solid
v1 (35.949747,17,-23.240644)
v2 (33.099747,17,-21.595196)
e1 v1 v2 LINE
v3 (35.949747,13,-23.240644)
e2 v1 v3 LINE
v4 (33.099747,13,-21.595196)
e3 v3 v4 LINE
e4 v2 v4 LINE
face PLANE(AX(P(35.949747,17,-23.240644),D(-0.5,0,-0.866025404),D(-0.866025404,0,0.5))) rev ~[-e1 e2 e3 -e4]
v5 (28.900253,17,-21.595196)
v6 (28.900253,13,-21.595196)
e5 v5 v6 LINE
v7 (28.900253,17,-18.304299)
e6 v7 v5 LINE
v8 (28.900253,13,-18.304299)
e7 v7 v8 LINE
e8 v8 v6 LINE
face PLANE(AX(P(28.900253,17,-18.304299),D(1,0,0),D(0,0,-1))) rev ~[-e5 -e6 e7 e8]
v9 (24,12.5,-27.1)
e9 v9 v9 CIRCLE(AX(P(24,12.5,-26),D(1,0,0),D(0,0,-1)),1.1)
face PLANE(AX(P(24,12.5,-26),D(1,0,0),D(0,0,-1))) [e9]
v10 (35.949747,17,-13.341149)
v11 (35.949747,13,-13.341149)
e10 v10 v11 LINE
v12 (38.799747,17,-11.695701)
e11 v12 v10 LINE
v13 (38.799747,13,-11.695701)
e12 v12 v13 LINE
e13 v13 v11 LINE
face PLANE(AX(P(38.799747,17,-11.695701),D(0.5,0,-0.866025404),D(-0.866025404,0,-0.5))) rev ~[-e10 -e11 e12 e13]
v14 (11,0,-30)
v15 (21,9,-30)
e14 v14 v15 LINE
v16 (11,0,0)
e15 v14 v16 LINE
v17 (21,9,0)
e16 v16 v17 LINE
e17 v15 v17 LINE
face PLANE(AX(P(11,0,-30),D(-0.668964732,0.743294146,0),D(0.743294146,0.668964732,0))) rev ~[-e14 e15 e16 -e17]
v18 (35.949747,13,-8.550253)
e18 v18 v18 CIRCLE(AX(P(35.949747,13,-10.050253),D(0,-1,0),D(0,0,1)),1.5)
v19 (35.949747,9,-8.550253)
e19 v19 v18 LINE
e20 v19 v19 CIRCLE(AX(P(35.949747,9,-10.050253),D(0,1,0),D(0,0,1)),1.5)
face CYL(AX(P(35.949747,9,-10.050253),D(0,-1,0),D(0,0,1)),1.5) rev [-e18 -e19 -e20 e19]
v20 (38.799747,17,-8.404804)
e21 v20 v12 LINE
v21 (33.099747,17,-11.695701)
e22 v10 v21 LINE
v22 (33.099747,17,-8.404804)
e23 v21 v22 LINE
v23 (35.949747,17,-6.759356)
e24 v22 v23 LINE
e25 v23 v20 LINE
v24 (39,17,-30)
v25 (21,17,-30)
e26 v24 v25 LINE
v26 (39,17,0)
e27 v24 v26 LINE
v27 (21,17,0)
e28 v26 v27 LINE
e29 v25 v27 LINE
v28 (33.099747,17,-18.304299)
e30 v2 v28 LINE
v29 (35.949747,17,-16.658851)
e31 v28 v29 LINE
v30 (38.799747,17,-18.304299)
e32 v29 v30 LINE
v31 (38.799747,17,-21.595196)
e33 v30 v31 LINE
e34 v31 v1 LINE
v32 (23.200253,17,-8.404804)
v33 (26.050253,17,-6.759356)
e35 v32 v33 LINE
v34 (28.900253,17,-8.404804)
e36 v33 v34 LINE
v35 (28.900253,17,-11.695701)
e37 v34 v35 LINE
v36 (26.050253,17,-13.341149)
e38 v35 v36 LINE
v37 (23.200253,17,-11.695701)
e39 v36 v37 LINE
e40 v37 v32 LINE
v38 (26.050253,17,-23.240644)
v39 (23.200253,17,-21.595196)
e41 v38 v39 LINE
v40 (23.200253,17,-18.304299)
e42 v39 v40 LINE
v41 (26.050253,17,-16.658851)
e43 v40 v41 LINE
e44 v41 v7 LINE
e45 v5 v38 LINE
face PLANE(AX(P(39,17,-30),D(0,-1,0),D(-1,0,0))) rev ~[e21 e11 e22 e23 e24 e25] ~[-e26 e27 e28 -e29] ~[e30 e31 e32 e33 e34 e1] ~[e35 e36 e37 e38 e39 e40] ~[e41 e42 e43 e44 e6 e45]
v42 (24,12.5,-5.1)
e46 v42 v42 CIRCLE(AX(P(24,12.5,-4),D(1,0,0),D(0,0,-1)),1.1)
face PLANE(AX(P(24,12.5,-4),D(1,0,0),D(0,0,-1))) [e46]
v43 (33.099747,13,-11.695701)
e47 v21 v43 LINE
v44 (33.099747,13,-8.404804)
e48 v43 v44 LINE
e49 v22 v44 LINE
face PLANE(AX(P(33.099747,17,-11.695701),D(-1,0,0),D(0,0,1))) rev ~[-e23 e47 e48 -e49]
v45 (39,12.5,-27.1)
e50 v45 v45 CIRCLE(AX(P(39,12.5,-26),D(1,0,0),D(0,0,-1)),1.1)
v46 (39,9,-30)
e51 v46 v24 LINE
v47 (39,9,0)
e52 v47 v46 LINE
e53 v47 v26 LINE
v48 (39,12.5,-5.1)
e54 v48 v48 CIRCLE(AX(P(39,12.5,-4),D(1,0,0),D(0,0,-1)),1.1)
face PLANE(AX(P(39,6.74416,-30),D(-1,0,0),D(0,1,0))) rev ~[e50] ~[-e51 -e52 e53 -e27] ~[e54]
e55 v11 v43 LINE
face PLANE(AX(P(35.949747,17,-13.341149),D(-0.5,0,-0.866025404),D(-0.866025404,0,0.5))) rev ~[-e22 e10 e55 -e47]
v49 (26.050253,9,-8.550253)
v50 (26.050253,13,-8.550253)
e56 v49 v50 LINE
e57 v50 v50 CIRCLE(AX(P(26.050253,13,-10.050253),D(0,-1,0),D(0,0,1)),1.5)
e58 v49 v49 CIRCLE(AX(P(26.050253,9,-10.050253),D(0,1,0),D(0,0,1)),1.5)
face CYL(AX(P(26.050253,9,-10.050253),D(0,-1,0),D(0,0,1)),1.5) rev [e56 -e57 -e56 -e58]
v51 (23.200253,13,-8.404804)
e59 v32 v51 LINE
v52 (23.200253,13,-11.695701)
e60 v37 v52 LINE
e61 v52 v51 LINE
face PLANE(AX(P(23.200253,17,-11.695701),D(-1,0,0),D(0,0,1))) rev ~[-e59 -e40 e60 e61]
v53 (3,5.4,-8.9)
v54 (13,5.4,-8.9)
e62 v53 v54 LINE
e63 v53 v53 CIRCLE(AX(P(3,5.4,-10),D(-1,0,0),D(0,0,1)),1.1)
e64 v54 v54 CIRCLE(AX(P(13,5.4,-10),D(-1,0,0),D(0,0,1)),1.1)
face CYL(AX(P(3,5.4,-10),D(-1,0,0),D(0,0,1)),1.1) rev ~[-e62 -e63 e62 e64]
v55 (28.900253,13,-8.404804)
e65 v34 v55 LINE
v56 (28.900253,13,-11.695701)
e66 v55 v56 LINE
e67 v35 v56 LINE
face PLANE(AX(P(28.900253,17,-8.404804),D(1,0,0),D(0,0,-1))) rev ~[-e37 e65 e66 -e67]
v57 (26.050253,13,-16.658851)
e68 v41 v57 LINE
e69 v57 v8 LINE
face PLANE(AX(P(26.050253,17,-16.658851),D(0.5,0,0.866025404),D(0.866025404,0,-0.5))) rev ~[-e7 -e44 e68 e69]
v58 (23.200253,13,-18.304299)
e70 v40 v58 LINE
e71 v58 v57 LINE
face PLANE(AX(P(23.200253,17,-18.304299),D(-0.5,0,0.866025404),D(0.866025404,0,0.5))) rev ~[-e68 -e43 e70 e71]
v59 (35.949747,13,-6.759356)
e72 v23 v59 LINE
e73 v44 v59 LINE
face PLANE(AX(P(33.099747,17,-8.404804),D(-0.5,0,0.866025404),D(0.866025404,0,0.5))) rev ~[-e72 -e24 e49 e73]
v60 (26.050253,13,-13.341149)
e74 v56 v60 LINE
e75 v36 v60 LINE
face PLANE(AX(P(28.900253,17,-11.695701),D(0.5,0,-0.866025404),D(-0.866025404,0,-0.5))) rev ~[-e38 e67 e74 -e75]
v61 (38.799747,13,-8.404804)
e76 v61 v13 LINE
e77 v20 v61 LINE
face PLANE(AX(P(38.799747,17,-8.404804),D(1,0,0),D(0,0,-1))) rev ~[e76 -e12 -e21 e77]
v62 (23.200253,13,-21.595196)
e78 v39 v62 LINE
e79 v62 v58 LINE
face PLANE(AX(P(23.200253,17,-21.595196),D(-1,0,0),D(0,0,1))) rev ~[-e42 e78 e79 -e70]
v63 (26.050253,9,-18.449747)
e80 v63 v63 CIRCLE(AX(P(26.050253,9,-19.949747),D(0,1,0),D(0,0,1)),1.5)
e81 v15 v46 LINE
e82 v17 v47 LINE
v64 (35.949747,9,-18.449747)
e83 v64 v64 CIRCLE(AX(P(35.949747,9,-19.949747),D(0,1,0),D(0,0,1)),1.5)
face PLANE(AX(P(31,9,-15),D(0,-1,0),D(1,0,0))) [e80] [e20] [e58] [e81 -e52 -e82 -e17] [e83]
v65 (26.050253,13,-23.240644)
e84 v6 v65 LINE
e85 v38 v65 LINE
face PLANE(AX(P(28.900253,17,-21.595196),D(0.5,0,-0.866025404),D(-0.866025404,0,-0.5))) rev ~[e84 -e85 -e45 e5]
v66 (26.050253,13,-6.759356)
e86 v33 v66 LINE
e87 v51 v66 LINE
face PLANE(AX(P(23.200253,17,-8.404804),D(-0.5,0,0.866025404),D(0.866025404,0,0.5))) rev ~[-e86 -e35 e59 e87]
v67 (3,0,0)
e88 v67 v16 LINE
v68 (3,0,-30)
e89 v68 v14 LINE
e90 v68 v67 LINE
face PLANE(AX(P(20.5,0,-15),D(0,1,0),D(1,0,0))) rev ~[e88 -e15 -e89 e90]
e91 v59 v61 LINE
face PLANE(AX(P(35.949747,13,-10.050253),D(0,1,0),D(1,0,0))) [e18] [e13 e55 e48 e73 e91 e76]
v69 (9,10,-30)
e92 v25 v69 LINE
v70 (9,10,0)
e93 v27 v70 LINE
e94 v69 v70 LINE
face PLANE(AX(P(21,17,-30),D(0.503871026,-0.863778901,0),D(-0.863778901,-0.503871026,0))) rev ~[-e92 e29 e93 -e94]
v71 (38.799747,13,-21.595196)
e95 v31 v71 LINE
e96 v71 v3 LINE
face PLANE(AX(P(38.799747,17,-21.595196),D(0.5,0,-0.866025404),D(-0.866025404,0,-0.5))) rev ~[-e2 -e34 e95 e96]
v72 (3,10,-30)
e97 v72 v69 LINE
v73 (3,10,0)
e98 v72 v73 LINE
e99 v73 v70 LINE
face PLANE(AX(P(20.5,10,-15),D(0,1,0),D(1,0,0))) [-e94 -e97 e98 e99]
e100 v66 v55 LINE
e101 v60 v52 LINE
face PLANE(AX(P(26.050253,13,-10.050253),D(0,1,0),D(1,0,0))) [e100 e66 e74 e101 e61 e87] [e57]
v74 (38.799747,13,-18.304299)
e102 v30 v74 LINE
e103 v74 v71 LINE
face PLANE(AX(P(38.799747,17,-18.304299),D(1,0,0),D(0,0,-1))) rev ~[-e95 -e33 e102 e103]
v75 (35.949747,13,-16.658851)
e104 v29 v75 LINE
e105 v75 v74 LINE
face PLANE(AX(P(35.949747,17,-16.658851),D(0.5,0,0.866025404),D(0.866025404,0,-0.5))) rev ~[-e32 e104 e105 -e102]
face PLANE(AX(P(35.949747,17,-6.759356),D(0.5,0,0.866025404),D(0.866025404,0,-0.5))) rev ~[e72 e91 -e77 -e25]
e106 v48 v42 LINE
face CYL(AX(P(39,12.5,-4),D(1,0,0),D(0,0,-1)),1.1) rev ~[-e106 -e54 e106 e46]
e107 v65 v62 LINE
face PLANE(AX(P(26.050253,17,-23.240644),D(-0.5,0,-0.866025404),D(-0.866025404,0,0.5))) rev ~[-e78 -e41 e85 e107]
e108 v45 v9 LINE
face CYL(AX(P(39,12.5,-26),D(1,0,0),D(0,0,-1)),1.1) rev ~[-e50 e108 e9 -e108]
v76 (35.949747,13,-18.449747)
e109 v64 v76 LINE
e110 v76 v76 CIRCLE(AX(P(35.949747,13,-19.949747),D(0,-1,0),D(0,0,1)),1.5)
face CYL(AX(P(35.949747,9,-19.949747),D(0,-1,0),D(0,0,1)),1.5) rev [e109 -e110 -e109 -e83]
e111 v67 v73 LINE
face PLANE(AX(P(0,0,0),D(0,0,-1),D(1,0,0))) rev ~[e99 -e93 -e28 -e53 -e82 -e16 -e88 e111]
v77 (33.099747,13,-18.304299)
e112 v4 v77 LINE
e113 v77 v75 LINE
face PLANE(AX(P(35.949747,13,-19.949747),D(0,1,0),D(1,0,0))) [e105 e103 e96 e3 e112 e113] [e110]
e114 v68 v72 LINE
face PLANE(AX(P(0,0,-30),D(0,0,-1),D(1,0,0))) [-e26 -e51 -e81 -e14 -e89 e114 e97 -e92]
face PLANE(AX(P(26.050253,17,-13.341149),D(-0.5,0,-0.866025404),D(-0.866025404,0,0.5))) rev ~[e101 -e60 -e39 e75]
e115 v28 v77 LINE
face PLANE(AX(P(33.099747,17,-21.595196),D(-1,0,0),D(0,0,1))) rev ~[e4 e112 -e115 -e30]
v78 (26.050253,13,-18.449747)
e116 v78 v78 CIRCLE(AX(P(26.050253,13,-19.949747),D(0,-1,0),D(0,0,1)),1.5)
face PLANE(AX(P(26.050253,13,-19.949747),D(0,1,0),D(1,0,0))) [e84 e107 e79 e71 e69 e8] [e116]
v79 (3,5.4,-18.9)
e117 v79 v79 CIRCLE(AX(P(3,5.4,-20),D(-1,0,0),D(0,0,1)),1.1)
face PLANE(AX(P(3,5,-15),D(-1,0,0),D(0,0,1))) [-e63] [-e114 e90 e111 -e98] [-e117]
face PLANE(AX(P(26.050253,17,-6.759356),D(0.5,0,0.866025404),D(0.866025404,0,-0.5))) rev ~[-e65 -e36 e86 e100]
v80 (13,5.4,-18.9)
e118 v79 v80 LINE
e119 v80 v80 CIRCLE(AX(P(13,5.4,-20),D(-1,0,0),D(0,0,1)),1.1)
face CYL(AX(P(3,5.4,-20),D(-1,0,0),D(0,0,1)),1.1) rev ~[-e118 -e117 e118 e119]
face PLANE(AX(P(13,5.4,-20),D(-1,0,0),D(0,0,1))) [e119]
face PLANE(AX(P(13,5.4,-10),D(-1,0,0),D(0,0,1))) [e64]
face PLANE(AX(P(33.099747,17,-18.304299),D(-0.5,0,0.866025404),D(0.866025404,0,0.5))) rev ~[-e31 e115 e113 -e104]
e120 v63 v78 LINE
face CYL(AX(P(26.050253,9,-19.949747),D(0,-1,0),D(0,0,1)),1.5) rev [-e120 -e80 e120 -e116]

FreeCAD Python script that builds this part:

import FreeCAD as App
import Part
import Sketcher
Q = App.Units.Quantity


def add_polygon(sketch, points):
    """Adds a closed chain of lines whose ends are joined by coincident constraints."""
    first, n = sketch.GeometryCount, len(points)
    for a, b in zip(points, points[1:] + points[:1]):
        sketch.addGeometry(Part.LineSegment(App.Vector(*a, 0), App.Vector(*b, 0)), False)
    for i in range(n):
        sketch.addConstraint(Sketcher.Constraint("Coincident", first + i, 2, first + (i + 1) % n, 1))

doc = App.newDocument("Part")
body = doc.addObject("PartDesign::Body", "Body")

# Sketch on XZ plane
sketch1 = doc.addObject("Sketcher::SketchObject", "Sketch")
body.addObject(sketch1)
sketch1.AttachmentSupport = (doc.XZ_Plane, [""])
sketch1.MapMode = "FlatFace"
add_polygon(sketch1, [(0, -30), (0, 0), (41, 0), (41, -30)])  # lines 0-3
sketch1.addConstraint([
    Sketcher.Constraint("Vertical", 0),
    Sketcher.Constraint("Horizontal", 1),
    Sketcher.Constraint("Vertical", 2),
    Sketcher.Constraint("Horizontal", 3),
    Sketcher.Constraint("Coincident", 0, 2, -1, 1),
    Sketcher.Constraint("DistanceX", 1, 1, 1, 2, 41.0),
    Sketcher.Constraint("DistanceY", 0, 1, 0, 2, 30.0),
])
pad1 = doc.addObject("PartDesign::Pad", "Pad")
body.addObject(pad1)
pad1.Profile = sketch1
pad1.Length = 10
pad1.Reversed = True

# Sketch on YZ plane
sketch2 = doc.addObject("Sketcher::SketchObject", "Sketch001")
body.addObject(sketch2)
sketch2.AttachmentSupport = (doc.YZ_Plane, [""])
sketch2.MapMode = "FlatFace"
add_polygon(sketch2, [(10, -30), (0, -30), (0, 0), (10, 0)])  # lines 0-3
sketch2.addConstraint([
    Sketcher.Constraint("Horizontal", 0),
    Sketcher.Constraint("Vertical", 1),
    Sketcher.Constraint("Horizontal", 2),
    Sketcher.Constraint("Vertical", 3),
    Sketcher.Constraint("Coincident", 1, 2, -1, 1),
    Sketcher.Constraint("DistanceX", 0, 2, 0, 1, 10.0),
    Sketcher.Constraint("DistanceY", 1, 1, 1, 2, 30.0),
])
pocket1 = doc.addObject("PartDesign::Pocket", "Pocket")
body.addObject(pocket1)
pocket1.Profile = sketch2
pocket1.Length = 3
pocket1.Reversed = True

# Sketch on XY plane
sketch3 = doc.addObject("Sketcher::SketchObject", "Sketch002")
body.addObject(sketch3)
sketch3.AttachmentSupport = (doc.XY_Plane, [""])
sketch3.MapMode = "FlatFace"
sketch3.AttachmentOffset = App.Placement(App.Vector(0, 0, -30), App.Rotation())
add_polygon(sketch3, [(21, 17), (39, 17), (39, 10), (9, 10)])  # lines 0-3
sketch3.addConstraint([
    Sketcher.Constraint("Horizontal", 0),
    Sketcher.Constraint("Vertical", 1),
    Sketcher.Constraint("Horizontal", 2),
    Sketcher.Constraint("DistanceX", 0, 1, 0, 2, 18.0),
    Sketcher.Constraint("DistanceX", 2, 2, 2, 1, 30.0),
    Sketcher.Constraint("DistanceY", 1, 2, 1, 1, 7.0),
    Sketcher.Constraint("DistanceX", -1, 1, 0, 2, 39.0),
    Sketcher.Constraint("DistanceY", -1, 1, 0, 2, 17.0),
])
pad2 = doc.addObject("PartDesign::Pad", "Pad001")
body.addObject(pad2)
pad2.Profile = sketch3
pad2.Length = 30

# Sketch on XZ plane
sketch4 = doc.addObject("Sketcher::SketchObject", "Sketch003")
body.addObject(sketch4)
sketch4.AttachmentSupport = (doc.XZ_Plane, [""])
sketch4.MapMode = "FlatFace"
add_polygon(sketch4, [(21, 0), (21, -30), (41, -30), (41, 0)])  # lines 0-3
sketch4.addConstraint([
    Sketcher.Constraint("Vertical", 0),
    Sketcher.Constraint("Horizontal", 1),
    Sketcher.Constraint("Vertical", 2),
    Sketcher.Constraint("Horizontal", 3),
    Sketcher.Constraint("PointOnObject", 2, 2, -1),
    Sketcher.Constraint("DistanceX", 1, 1, 1, 2, 20.0),
    Sketcher.Constraint("DistanceY", 0, 2, 0, 1, 30.0),
    Sketcher.Constraint("DistanceX", -1, 1, 0, 2, 21.0),
])
pocket2 = doc.addObject("PartDesign::Pocket", "Pocket001")
body.addObject(pocket2)
pocket2.Profile = sketch4
pocket2.Length = 9

# Sketch on YZ plane
sketch5 = doc.addObject("Sketcher::SketchObject", "Sketch004")
body.addObject(sketch5)
sketch5.AttachmentSupport = (doc.YZ_Plane, [""])
sketch5.MapMode = "FlatFace"
sketch5.AttachmentOffset = App.Placement(App.Vector(0, 0, 39), App.Rotation())
sketch5.addGeometry([
    Part.Circle(App.Vector(12.5, -4, 0), App.Vector(0, 0, 1), 1.1),
    Part.Circle(App.Vector(12.5, -26, 0), App.Vector(0, 0, 1), 1.1),
], False)
sketch5.addConstraint([
    Sketcher.Constraint("Equal", 0, 1),
    Sketcher.Constraint("Vertical", 0, 3, 1, 3),
    Sketcher.Constraint("Diameter", 0, 2.2),
    Sketcher.Constraint("DistanceY", 0, 3, -1, 1, 4.0),
    Sketcher.Constraint("DistanceY", 1, 3, -1, 1, 26.0),
    Sketcher.Constraint("DistanceX", -1, 1, 0, 3, 12.5),
])
pocket3 = doc.addObject("PartDesign::Pocket", "Pocket002")
body.addObject(pocket3)
pocket3.Profile = sketch5
pocket3.Length = 15

# Sketch on XZ plane
sketch6 = doc.addObject("Sketcher::SketchObject", "Sketch005")
body.addObject(sketch6)
sketch6.AttachmentSupport = (doc.XZ_Plane, [""])
sketch6.MapMode = "FlatFace"
sketch6.AttachmentOffset = App.Placement(App.Vector(0, 0, -9), App.Rotation())
sketch6.addGeometry([
    Part.Circle(App.Vector(35.949747, -19.949747, 0), App.Vector(0, 0, 1), 1.5),
    Part.Circle(App.Vector(35.949747, -10.050253, 0), App.Vector(0, 0, 1), 1.5),
    Part.Circle(App.Vector(26.050253, -10.050253, 0), App.Vector(0, 0, 1), 1.5),
    Part.Circle(App.Vector(26.050253, -19.949747, 0), App.Vector(0, 0, 1), 1.5),
], False)
sketch6.addConstraint([
    Sketcher.Constraint("Equal", 0, 1),
    Sketcher.Constraint("Equal", 1, 2),
    Sketcher.Constraint("Equal", 2, 3),
    Sketcher.Constraint("Horizontal", 1, 3, 2, 3),
    Sketcher.Constraint("Horizontal", 0, 3, 3, 3),
    Sketcher.Constraint("Vertical", 0, 3, 1, 3),
    Sketcher.Constraint("Vertical", 2, 3, 3, 3),
    Sketcher.Constraint("Diameter", 0, 3.0),
    Sketcher.Constraint("DistanceX", -1, 1, 0, 3, 35.949747),
    Sketcher.Constraint("DistanceY", 0, 3, -1, 1, 19.949747),
    Sketcher.Constraint("DistanceY", 1, 3, -1, 1, 10.050253),
    Sketcher.Constraint("DistanceX", -1, 1, 2, 3, 26.050253),
])
pocket4 = doc.addObject("PartDesign::Pocket", "Pocket003")
body.addObject(pocket4)
pocket4.Profile = sketch6
pocket4.Type = "ThroughAll"

# Sketch on YZ plane
sketch7 = doc.addObject("Sketcher::SketchObject", "Sketch006")
body.addObject(sketch7)
sketch7.AttachmentSupport = (doc.YZ_Plane, [""])
sketch7.MapMode = "FlatFace"
sketch7.AttachmentOffset = App.Placement(App.Vector(0, 0, 3), App.Rotation())
sketch7.addGeometry([
    Part.Circle(App.Vector(5.4, -20, 0), App.Vector(0, 0, 1), 1.1),
    Part.Circle(App.Vector(5.4, -10, 0), App.Vector(0, 0, 1), 1.1),
], False)
sketch7.addConstraint([
    Sketcher.Constraint("Equal", 0, 1),
    Sketcher.Constraint("Vertical", 0, 3, 1, 3),
    Sketcher.Constraint("Diameter", 0, 2.2),
    Sketcher.Constraint("DistanceY", 0, 3, -1, 1, 20.0),
    Sketcher.Constraint("DistanceY", 1, 3, -1, 1, 10.0),
    Sketcher.Constraint("DistanceX", -1, 1, 0, 3, 5.4),
])
pocket5 = doc.addObject("PartDesign::Pocket", "Pocket004")
body.addObject(pocket5)
pocket5.Profile = sketch7
pocket5.Length = 10
pocket5.Reversed = True

# Sketch on XY plane
sketch8 = doc.addObject("Sketcher::SketchObject", "Sketch007")
body.addObject(sketch8)
sketch8.AttachmentSupport = (doc.XY_Plane, [""])
sketch8.MapMode = "FlatFace"
sketch8.AttachmentOffset = App.Placement(App.Vector(0, 0, -30), App.Rotation())
add_polygon(sketch8, [(21, 9), (21, 0), (11, 0)])  # lines 0-2
sketch8.addConstraint([
    Sketcher.Constraint("Vertical", 0),
    Sketcher.Constraint("Horizontal", 1),
    Sketcher.Constraint("PointOnObject", 0, 2, -1),
    Sketcher.Constraint("DistanceX", 1, 2, 1, 1, 10.0),
    Sketcher.Constraint("DistanceY", 0, 2, 0, 1, 9.0),
    Sketcher.Constraint("DistanceX", -1, 1, 0, 2, 21.0),
])
pocket6 = doc.addObject("PartDesign::Pocket", "Pocket005")
body.addObject(pocket6)
pocket6.Profile = sketch8
pocket6.Type = "ThroughAll"
pocket6.Reversed = True

# Sketch on XZ plane
sketch9 = doc.addObject("Sketcher::SketchObject", "Sketch008")
body.addObject(sketch9)
sketch9.AttachmentSupport = (doc.XZ_Plane, [""])
sketch9.MapMode = "FlatFace"
sketch9.AttachmentOffset = App.Placement(App.Vector(0, 0, -17), App.Rotation())
add_polygon(sketch9, [(26.050253, -23.240644), (23.200253, -21.595196), (23.200253, -18.304299), (26.050253, -16.658851), (28.900253, -18.304299), (28.900253, -21.595196)])  # lines 0-5
add_polygon(sketch9, [(35.949747, -23.240644), (33.099747, -21.595196), (33.099747, -18.304299), (35.949747, -16.658851), (38.799747, -18.304299), (38.799747, -21.595196)])  # lines 6-11
add_polygon(sketch9, [(35.949747, -13.341149), (33.099747, -11.695701), (33.099747, -8.404804), (35.949747, -6.759356), (38.799747, -8.404804), (38.799747, -11.695701)])  # lines 12-17
add_polygon(sketch9, [(26.050253, -13.341149), (23.200253, -11.695701), (23.200253, -8.404804), (26.050253, -6.759356), (28.900253, -8.404804), (28.900253, -11.695701)])  # lines 18-23
sketch9.addConstraint([
    Sketcher.Constraint("Vertical", 1),
    Sketcher.Constraint("Vertical", 4),
    Sketcher.Constraint("Vertical", 7),
    Sketcher.Constraint("Vertical", 10),
    Sketcher.Constraint("Vertical", 13),
    Sketcher.Constraint("Vertical", 16),
    Sketcher.Constraint("Vertical", 19),
    Sketcher.Constraint("Vertical", 22),
    Sketcher.Constraint("Parallel", 0, 3),
    Sketcher.Constraint("Parallel", 2, 5),
    Sketcher.Constraint("Parallel", 3, 6),
    Sketcher.Constraint("Parallel", 5, 8),
    Sketcher.Constraint("Parallel", 6, 9),
    Sketcher.Constraint("Parallel", 8, 11),
    Sketcher.Constraint("Parallel", 9, 12),
    Sketcher.Constraint("Parallel", 11, 14),
    Sketcher.Constraint("Parallel", 12, 15),
    Sketcher.Constraint("Parallel", 14, 17),
    Sketcher.Constraint("Parallel", 15, 18),
    Sketcher.Constraint("Parallel", 17, 20),
    Sketcher.Constraint("Parallel", 18, 21),
    Sketcher.Constraint("Parallel", 20, 23),
    Sketcher.Constraint("Horizontal", 1, 2, 3, 2),
    Sketcher.Constraint("Horizontal", 0, 2, 4, 2),
    Sketcher.Constraint("Horizontal", 4, 2, 6, 2),
    Sketcher.Constraint("Horizontal", 3, 2, 7, 2),
    Sketcher.Constraint("Horizontal", 2, 2, 8, 2),
    Sketcher.Constraint("Horizontal", 7, 2, 9, 2),
    Sketcher.Constraint("Horizontal", 6, 2, 10, 2),
    Sketcher.Constraint("Horizontal", 13, 2, 15, 2),
    Sketcher.Constraint("Horizontal", 12, 2, 16, 2),
    Sketcher.Constraint("Horizontal", 16, 2, 18, 2),
    Sketcher.Constraint("Horizontal", 15, 2, 19, 2),
    Sketcher.Constraint("Horizontal", 14, 2, 20, 2),
    Sketcher.Constraint("Horizontal", 19, 2, 21, 2),
    Sketcher.Constraint("Horizontal", 18, 2, 22, 2),
    Sketcher.Constraint("Vertical", 2, 2, 5, 2),
    Sketcher.Constraint("Vertical", 7, 2, 12, 2),
    Sketcher.Constraint("Vertical", 11, 2, 14, 2),
    Sketcher.Constraint("Vertical", 1, 2, 18, 2),
    Sketcher.Constraint("Equal", 10, 13),
    Sketcher.Constraint("Angle", 0, Q("150 deg")),
    Sketcher.Constraint("DistanceX", 1, 2, 3, 2, 5.7),
    Sketcher.Constraint("DistanceY", 1, 2, -1, 1, 18.304299),
    Sketcher.Constraint("DistanceY", 12, 2, -1, 1, 11.695701),
    Sketcher.Constraint("DistanceY", 1, 1, 1, 2, 3.290897),
    Sketcher.Constraint("DistanceX", -1, 1, 0, 2, 23.200253),
    Sketcher.Constraint("DistanceX", -1, 1, 6, 2, 33.099747),
])
pocket7 = doc.addObject("PartDesign::Pocket", "Pocket006")
body.addObject(pocket7)
pocket7.Profile = sketch9
pocket7.Length = 4
pocket7.Reversed = True

# Sketch on XY plane
sketch10 = doc.addObject("Sketcher::SketchObject", "Sketch009")
body.addObject(sketch10)
sketch10.AttachmentSupport = (doc.XY_Plane, [""])
sketch10.MapMode = "FlatFace"
sketch10.AttachmentOffset = App.Placement(App.Vector(0, 0, -30), App.Rotation())
add_polygon(sketch10, [(43.13205, 10), (43.13205, 6.74416), (39, 6.74416), (39, 10)])  # lines 0-3
sketch10.addConstraint([
    Sketcher.Constraint("Vertical", 0),
    Sketcher.Constraint("Horizontal", 1),
    Sketcher.Constraint("Vertical", 2),
    Sketcher.Constraint("Horizontal", 3),
    Sketcher.Constraint("DistanceX", -1, 1, 1, 2, 39.0),
    Sketcher.Constraint("DistanceY", -1, 1, 2, 2, 10.0),
    Sketcher.Constraint("DistanceX", 1, 2, 1, 1, 4.13205),
    Sketcher.Constraint("DistanceY", 0, 2, 0, 1, 3.25584),
])
pocket8 = doc.addObject("PartDesign::Pocket", "Pocket007")
body.addObject(pocket8)
pocket8.Profile = sketch10
pocket8.Type = "ThroughAll"
pocket8.Reversed = True

doc.recompute()
